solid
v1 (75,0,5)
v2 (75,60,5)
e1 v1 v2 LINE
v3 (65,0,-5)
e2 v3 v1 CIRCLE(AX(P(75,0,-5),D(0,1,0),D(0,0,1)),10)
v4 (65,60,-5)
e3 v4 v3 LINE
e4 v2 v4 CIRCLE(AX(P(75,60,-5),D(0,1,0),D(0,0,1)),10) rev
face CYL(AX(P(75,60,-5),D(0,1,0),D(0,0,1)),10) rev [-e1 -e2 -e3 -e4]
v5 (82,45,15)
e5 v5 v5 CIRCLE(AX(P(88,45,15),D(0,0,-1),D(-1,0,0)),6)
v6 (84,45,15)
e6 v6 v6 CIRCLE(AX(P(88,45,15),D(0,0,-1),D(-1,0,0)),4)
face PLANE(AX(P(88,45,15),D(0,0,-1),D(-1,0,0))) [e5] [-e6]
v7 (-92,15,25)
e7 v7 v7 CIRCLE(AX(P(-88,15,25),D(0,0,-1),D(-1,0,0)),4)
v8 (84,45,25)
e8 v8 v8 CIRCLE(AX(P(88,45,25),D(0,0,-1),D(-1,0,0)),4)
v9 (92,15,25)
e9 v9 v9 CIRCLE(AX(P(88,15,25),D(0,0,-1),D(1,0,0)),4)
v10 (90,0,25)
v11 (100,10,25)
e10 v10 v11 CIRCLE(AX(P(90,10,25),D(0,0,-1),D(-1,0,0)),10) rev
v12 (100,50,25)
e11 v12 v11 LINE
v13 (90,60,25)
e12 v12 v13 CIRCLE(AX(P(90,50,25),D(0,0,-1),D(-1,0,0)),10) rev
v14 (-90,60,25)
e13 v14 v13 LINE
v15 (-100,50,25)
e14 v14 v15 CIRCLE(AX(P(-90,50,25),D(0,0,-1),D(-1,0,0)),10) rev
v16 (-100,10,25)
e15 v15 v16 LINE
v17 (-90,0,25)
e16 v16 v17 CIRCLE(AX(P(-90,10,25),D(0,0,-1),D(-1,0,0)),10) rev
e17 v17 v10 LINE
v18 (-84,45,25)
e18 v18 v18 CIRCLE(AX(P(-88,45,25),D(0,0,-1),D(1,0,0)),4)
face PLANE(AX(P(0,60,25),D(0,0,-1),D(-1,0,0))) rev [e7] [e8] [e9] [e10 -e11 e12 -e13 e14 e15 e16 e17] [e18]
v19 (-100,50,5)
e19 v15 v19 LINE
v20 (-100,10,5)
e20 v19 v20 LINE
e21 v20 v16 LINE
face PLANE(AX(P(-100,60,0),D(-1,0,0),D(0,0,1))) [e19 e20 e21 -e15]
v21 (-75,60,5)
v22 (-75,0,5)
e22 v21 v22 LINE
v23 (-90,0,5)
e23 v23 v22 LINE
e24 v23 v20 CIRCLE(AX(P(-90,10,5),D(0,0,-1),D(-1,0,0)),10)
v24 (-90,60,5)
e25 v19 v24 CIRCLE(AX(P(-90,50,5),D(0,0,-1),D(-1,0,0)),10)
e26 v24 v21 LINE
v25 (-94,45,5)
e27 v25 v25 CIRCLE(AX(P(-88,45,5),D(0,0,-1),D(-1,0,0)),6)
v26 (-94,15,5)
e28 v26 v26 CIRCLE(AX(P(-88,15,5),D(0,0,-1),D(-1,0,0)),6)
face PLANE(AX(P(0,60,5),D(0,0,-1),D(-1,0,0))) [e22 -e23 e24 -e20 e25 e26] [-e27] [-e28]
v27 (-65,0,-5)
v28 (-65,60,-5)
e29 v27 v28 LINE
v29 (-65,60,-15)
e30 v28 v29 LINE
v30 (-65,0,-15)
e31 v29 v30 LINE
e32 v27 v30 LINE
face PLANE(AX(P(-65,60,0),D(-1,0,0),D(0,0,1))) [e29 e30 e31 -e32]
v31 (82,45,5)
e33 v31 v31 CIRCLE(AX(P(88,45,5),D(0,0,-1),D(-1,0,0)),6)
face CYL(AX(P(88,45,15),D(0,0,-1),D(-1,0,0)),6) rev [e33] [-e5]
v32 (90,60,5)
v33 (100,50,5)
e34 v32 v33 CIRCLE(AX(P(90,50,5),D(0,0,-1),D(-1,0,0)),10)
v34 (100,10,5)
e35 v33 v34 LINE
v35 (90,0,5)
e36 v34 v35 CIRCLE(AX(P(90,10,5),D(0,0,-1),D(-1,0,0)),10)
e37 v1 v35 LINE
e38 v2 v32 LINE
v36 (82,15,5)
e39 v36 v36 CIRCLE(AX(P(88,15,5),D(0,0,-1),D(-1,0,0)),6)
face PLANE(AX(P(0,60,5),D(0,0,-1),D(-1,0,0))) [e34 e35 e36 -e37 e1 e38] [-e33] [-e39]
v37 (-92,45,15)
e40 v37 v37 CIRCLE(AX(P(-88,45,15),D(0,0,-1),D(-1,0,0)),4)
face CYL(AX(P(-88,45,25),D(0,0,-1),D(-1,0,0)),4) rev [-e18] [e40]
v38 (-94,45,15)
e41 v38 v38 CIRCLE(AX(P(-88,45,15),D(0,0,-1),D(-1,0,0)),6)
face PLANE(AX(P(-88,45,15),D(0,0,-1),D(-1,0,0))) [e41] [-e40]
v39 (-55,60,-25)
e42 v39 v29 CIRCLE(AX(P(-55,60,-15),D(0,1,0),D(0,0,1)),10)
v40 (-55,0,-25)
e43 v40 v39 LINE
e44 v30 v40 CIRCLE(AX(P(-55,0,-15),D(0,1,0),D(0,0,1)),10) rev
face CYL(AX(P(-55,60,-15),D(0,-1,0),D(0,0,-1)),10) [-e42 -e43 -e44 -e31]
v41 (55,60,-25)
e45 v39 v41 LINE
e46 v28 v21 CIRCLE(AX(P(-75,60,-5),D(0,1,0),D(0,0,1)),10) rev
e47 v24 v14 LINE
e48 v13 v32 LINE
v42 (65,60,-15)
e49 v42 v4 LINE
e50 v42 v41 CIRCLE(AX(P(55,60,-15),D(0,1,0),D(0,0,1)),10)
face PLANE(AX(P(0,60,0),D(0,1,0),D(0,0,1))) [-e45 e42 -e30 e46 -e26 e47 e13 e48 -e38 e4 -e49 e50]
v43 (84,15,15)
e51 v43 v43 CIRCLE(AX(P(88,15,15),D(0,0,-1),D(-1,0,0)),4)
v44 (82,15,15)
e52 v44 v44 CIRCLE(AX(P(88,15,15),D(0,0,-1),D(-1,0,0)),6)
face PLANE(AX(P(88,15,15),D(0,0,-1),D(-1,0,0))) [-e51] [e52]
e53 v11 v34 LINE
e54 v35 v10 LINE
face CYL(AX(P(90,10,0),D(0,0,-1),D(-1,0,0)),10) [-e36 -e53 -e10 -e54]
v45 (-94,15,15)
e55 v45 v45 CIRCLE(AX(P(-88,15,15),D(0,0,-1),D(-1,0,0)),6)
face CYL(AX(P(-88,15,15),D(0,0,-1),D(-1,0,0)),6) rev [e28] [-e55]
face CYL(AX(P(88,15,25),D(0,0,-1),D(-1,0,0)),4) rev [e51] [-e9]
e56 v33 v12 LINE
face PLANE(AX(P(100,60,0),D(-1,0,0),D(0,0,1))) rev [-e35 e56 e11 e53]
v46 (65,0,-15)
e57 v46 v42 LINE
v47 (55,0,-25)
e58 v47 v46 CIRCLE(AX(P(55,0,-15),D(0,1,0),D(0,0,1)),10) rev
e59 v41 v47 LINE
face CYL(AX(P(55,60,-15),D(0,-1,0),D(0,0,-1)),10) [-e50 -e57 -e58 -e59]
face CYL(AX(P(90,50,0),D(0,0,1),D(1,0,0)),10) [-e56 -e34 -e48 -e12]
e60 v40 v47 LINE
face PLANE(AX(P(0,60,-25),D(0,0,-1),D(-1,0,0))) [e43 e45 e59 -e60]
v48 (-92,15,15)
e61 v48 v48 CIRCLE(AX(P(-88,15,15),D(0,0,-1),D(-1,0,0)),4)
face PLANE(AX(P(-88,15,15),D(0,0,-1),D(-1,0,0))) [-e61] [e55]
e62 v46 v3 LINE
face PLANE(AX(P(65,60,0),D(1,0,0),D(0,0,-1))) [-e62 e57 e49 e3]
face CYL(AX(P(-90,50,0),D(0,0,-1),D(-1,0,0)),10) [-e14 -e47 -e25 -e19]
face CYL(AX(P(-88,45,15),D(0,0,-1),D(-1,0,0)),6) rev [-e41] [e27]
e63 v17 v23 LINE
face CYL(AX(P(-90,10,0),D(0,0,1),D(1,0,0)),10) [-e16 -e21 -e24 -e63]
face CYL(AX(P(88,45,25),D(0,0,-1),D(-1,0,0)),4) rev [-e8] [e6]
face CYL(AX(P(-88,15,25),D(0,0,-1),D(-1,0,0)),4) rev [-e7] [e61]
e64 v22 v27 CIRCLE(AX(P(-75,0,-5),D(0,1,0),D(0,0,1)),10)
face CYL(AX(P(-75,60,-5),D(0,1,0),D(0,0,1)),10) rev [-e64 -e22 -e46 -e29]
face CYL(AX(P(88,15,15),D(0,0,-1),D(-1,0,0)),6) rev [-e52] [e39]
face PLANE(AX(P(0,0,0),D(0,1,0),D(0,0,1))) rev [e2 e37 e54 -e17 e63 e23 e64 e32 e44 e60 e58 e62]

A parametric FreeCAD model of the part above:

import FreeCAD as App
import Part
import Sketcher
from FreeCAD import Vector


def edges_at(feature, points):
    """Names of the edges that pass closest to the given points."""
    edges = feature.Shape.Edges
    near = lambda p: min(range(len(edges)), key=lambda i: edges[i].distToShape(Part.Vertex(*p))[0])
    return sorted({f"Edge{near(p) + 1}" for p in points})


def add_polygon(sketch, points):
    """Adds a closed chain of lines whose ends are joined by coincident constraints."""
    first, n = sketch.GeometryCount, len(points)
    for a, b in zip(points, points[1:] + points[:1]):
        sketch.addGeometry(Part.LineSegment(App.Vector(*a, 0), App.Vector(*b, 0)), False)
    for i in range(n):
        sketch.addConstraint(Sketcher.Constraint("Coincident", first + i, 2, first + (i + 1) % n, 1))

doc = App.newDocument("Part")
body = doc.addObject("PartDesign::Body", "Body")

# Sketch on XZ plane
sketch1 = doc.addObject("Sketcher::SketchObject", "Sketch")
body.addObject(sketch1)
sketch1.AttachmentSupport = (doc.XZ_Plane, [""])
sketch1.MapMode = "FlatFace"
add_polygon(sketch1, [(-65, 5), (-100, 5), (-100, 25), (100, 25), (100, 5), (65, 5), (65, -25), (-65, -25)])  # lines 0-7
sketch1.addConstraint([
    Sketcher.Constraint("Horizontal", 0),
    Sketcher.Constraint("Vertical", 1),
    Sketcher.Constraint("Horizontal", 2),
    Sketcher.Constraint("Vertical", 3),
    Sketcher.Constraint("Horizontal", 4),
    Sketcher.Constraint("Vertical", 5),
    Sketcher.Constraint("Horizontal", 6),
    Sketcher.Constraint("Vertical", 7),
    Sketcher.Constraint("Symmetric", 0, 2, 3, 2, -2),
    Sketcher.Constraint("Equal", 0, 4),
    Sketcher.Constraint("DistanceX", 0, 2, 0, 1, 35.0),
    Sketcher.Constraint("DistanceX", 2, 1, 2, 2, 200.0),
    Sketcher.Constraint("DistanceY", 1, 1, 1, 2, 20.0),
    Sketcher.Constraint("DistanceY", 5, 2, 5, 1, 30.0),
    Sketcher.Constraint("DistanceY", -1, 1, 0, 2, 5.0),
])
pad1 = doc.addObject("PartDesign::Pad", "Pad")
body.addObject(pad1)
pad1.Profile = sketch1
pad1.Length = 60
pad1.Reversed = True
doc.recompute()

fillet = doc.addObject("PartDesign::Fillet", "Fillet")
body.addObject(fillet)
fillet.Base = (pad1, edges_at(pad1, [
    (-100, 0, 15),
    (-65, 30, 5),
    (-65, 30, -25),
    (65, 30, -25),
    (65, 30, 5),
    (-100, 60, 15),
    (100, 60, 15),
    (100, 0, 15),
]))
fillet.Radius = 10

# Sketch on XY plane
sketch2 = doc.addObject("Sketcher::SketchObject", "Sketch001")
body.addObject(sketch2)
sketch2.AttachmentSupport = (doc.XY_Plane, [""])
sketch2.MapMode = "FlatFace"
sketch2.AttachmentOffset = App.Placement(Vector(0, 0, 5), App.Rotation())
sketch2.addGeometry([
    Part.Circle(Vector(88, 45, 0), Vector(0, 0, 1), 4),
    Part.Circle(Vector(88, 15, 0), Vector(0, 0, 1), 4),
    Part.Circle(Vector(-88, 15, 0), Vector(0, 0, 1), 4),
    Part.Circle(Vector(-88, 45, 0), Vector(0, 0, 1), 4),
], False)
sketch2.addConstraint([
    Sketcher.Constraint("Equal", 0, 1),
    Sketcher.Constraint("Equal", 1, 2),
    Sketcher.Constraint("Equal", 2, 3),
    Sketcher.Constraint("Symmetric", 1, 3, 2, 3, -2),
    Sketcher.Constraint("Symmetric", 0, 3, 3, 3, -2),
    Sketcher.Constraint("Vertical", 0, 3, 1, 3),
    Sketcher.Constraint("Diameter", 0, 8.0),
    Sketcher.Constraint("DistanceX", -1, 1, 0, 3, 88.0),
    Sketcher.Constraint("DistanceY", -1, 1, 0, 3, 45.0),
    Sketcher.Constraint("DistanceY", -1, 1, 1, 3, 15.0),
])
pocket1 = doc.addObject("PartDesign::Pocket", "Pocket")
body.addObject(pocket1)
pocket1.Profile = sketch2
pocket1.Type = "ThroughAll"
pocket1.Reversed = True

# Sketch on XY plane
sketch3 = doc.addObject("Sketcher::SketchObject", "Sketch002")
body.addObject(sketch3)
sketch3.AttachmentSupport = (doc.XY_Plane, [""])
sketch3.MapMode = "FlatFace"
sketch3.AttachmentOffset = App.Placement(Vector(0, 0, 5), App.Rotation())
sketch3.addGeometry([
    Part.Circle(Vector(-88, 15, 0), Vector(0, 0, 1), 6),  # 0
    Part.Circle(Vector(-88, 15, 0), Vector(0, 0, 1), 4),  # 1
    Part.Circle(Vector(-88, 45, 0), Vector(0, 0, 1), 6),  # 2
    Part.Circle(Vector(-88, 45, 0), Vector(0, 0, 1), 4),  # 3
    Part.Circle(Vector(88, 15, 0), Vector(0, 0, 1), 6),  # 4
    Part.Circle(Vector(88, 15, 0), Vector(0, 0, 1), 4),  # 5
    Part.Circle(Vector(88, 45, 0), Vector(0, 0, 1), 6),  # 6
    Part.Circle(Vector(88, 45, 0), Vector(0, 0, 1), 4),  # 7
], False)
sketch3.addConstraint([
    Sketcher.Constraint("Coincident", 1, 3, 0, 3),
    Sketcher.Constraint("Coincident", 3, 3, 2, 3),
    Sketcher.Constraint("Coincident", 5, 3, 4, 3),
    Sketcher.Constraint("Coincident", 7, 3, 6, 3),
    Sketcher.Constraint("Equal", 0, 2),
    Sketcher.Constraint("Equal", 1, 3),
    Sketcher.Constraint("Equal", 2, 4),
    Sketcher.Constraint("Equal", 3, 5),
    Sketcher.Constraint("Equal", 4, 6),
    Sketcher.Constraint("Equal", 5, 7),
    Sketcher.Constraint("Symmetric", 0, 3, 4, 3, -2),
    Sketcher.Constraint("Symmetric", 2, 3, 6, 3, -2),
    Sketcher.Constraint("Vertical", 1, 3, 2, 3),
    Sketcher.Constraint("Diameter", 0, 12.0),
    Sketcher.Constraint("Diameter", 1, 8.0),
    Sketcher.Constraint("DistanceX", 0, 3, -1, 1, 88.0),
    Sketcher.Constraint("DistanceY", -1, 1, 0, 3, 15.0),
    Sketcher.Constraint("DistanceY", -1, 1, 2, 3, 45.0),
])
pocket2 = doc.addObject("PartDesign::Pocket", "Pocket001")
body.addObject(pocket2)
pocket2.Profile = sketch3
pocket2.Length = 10
pocket2.Reversed = True

doc.recompute()
